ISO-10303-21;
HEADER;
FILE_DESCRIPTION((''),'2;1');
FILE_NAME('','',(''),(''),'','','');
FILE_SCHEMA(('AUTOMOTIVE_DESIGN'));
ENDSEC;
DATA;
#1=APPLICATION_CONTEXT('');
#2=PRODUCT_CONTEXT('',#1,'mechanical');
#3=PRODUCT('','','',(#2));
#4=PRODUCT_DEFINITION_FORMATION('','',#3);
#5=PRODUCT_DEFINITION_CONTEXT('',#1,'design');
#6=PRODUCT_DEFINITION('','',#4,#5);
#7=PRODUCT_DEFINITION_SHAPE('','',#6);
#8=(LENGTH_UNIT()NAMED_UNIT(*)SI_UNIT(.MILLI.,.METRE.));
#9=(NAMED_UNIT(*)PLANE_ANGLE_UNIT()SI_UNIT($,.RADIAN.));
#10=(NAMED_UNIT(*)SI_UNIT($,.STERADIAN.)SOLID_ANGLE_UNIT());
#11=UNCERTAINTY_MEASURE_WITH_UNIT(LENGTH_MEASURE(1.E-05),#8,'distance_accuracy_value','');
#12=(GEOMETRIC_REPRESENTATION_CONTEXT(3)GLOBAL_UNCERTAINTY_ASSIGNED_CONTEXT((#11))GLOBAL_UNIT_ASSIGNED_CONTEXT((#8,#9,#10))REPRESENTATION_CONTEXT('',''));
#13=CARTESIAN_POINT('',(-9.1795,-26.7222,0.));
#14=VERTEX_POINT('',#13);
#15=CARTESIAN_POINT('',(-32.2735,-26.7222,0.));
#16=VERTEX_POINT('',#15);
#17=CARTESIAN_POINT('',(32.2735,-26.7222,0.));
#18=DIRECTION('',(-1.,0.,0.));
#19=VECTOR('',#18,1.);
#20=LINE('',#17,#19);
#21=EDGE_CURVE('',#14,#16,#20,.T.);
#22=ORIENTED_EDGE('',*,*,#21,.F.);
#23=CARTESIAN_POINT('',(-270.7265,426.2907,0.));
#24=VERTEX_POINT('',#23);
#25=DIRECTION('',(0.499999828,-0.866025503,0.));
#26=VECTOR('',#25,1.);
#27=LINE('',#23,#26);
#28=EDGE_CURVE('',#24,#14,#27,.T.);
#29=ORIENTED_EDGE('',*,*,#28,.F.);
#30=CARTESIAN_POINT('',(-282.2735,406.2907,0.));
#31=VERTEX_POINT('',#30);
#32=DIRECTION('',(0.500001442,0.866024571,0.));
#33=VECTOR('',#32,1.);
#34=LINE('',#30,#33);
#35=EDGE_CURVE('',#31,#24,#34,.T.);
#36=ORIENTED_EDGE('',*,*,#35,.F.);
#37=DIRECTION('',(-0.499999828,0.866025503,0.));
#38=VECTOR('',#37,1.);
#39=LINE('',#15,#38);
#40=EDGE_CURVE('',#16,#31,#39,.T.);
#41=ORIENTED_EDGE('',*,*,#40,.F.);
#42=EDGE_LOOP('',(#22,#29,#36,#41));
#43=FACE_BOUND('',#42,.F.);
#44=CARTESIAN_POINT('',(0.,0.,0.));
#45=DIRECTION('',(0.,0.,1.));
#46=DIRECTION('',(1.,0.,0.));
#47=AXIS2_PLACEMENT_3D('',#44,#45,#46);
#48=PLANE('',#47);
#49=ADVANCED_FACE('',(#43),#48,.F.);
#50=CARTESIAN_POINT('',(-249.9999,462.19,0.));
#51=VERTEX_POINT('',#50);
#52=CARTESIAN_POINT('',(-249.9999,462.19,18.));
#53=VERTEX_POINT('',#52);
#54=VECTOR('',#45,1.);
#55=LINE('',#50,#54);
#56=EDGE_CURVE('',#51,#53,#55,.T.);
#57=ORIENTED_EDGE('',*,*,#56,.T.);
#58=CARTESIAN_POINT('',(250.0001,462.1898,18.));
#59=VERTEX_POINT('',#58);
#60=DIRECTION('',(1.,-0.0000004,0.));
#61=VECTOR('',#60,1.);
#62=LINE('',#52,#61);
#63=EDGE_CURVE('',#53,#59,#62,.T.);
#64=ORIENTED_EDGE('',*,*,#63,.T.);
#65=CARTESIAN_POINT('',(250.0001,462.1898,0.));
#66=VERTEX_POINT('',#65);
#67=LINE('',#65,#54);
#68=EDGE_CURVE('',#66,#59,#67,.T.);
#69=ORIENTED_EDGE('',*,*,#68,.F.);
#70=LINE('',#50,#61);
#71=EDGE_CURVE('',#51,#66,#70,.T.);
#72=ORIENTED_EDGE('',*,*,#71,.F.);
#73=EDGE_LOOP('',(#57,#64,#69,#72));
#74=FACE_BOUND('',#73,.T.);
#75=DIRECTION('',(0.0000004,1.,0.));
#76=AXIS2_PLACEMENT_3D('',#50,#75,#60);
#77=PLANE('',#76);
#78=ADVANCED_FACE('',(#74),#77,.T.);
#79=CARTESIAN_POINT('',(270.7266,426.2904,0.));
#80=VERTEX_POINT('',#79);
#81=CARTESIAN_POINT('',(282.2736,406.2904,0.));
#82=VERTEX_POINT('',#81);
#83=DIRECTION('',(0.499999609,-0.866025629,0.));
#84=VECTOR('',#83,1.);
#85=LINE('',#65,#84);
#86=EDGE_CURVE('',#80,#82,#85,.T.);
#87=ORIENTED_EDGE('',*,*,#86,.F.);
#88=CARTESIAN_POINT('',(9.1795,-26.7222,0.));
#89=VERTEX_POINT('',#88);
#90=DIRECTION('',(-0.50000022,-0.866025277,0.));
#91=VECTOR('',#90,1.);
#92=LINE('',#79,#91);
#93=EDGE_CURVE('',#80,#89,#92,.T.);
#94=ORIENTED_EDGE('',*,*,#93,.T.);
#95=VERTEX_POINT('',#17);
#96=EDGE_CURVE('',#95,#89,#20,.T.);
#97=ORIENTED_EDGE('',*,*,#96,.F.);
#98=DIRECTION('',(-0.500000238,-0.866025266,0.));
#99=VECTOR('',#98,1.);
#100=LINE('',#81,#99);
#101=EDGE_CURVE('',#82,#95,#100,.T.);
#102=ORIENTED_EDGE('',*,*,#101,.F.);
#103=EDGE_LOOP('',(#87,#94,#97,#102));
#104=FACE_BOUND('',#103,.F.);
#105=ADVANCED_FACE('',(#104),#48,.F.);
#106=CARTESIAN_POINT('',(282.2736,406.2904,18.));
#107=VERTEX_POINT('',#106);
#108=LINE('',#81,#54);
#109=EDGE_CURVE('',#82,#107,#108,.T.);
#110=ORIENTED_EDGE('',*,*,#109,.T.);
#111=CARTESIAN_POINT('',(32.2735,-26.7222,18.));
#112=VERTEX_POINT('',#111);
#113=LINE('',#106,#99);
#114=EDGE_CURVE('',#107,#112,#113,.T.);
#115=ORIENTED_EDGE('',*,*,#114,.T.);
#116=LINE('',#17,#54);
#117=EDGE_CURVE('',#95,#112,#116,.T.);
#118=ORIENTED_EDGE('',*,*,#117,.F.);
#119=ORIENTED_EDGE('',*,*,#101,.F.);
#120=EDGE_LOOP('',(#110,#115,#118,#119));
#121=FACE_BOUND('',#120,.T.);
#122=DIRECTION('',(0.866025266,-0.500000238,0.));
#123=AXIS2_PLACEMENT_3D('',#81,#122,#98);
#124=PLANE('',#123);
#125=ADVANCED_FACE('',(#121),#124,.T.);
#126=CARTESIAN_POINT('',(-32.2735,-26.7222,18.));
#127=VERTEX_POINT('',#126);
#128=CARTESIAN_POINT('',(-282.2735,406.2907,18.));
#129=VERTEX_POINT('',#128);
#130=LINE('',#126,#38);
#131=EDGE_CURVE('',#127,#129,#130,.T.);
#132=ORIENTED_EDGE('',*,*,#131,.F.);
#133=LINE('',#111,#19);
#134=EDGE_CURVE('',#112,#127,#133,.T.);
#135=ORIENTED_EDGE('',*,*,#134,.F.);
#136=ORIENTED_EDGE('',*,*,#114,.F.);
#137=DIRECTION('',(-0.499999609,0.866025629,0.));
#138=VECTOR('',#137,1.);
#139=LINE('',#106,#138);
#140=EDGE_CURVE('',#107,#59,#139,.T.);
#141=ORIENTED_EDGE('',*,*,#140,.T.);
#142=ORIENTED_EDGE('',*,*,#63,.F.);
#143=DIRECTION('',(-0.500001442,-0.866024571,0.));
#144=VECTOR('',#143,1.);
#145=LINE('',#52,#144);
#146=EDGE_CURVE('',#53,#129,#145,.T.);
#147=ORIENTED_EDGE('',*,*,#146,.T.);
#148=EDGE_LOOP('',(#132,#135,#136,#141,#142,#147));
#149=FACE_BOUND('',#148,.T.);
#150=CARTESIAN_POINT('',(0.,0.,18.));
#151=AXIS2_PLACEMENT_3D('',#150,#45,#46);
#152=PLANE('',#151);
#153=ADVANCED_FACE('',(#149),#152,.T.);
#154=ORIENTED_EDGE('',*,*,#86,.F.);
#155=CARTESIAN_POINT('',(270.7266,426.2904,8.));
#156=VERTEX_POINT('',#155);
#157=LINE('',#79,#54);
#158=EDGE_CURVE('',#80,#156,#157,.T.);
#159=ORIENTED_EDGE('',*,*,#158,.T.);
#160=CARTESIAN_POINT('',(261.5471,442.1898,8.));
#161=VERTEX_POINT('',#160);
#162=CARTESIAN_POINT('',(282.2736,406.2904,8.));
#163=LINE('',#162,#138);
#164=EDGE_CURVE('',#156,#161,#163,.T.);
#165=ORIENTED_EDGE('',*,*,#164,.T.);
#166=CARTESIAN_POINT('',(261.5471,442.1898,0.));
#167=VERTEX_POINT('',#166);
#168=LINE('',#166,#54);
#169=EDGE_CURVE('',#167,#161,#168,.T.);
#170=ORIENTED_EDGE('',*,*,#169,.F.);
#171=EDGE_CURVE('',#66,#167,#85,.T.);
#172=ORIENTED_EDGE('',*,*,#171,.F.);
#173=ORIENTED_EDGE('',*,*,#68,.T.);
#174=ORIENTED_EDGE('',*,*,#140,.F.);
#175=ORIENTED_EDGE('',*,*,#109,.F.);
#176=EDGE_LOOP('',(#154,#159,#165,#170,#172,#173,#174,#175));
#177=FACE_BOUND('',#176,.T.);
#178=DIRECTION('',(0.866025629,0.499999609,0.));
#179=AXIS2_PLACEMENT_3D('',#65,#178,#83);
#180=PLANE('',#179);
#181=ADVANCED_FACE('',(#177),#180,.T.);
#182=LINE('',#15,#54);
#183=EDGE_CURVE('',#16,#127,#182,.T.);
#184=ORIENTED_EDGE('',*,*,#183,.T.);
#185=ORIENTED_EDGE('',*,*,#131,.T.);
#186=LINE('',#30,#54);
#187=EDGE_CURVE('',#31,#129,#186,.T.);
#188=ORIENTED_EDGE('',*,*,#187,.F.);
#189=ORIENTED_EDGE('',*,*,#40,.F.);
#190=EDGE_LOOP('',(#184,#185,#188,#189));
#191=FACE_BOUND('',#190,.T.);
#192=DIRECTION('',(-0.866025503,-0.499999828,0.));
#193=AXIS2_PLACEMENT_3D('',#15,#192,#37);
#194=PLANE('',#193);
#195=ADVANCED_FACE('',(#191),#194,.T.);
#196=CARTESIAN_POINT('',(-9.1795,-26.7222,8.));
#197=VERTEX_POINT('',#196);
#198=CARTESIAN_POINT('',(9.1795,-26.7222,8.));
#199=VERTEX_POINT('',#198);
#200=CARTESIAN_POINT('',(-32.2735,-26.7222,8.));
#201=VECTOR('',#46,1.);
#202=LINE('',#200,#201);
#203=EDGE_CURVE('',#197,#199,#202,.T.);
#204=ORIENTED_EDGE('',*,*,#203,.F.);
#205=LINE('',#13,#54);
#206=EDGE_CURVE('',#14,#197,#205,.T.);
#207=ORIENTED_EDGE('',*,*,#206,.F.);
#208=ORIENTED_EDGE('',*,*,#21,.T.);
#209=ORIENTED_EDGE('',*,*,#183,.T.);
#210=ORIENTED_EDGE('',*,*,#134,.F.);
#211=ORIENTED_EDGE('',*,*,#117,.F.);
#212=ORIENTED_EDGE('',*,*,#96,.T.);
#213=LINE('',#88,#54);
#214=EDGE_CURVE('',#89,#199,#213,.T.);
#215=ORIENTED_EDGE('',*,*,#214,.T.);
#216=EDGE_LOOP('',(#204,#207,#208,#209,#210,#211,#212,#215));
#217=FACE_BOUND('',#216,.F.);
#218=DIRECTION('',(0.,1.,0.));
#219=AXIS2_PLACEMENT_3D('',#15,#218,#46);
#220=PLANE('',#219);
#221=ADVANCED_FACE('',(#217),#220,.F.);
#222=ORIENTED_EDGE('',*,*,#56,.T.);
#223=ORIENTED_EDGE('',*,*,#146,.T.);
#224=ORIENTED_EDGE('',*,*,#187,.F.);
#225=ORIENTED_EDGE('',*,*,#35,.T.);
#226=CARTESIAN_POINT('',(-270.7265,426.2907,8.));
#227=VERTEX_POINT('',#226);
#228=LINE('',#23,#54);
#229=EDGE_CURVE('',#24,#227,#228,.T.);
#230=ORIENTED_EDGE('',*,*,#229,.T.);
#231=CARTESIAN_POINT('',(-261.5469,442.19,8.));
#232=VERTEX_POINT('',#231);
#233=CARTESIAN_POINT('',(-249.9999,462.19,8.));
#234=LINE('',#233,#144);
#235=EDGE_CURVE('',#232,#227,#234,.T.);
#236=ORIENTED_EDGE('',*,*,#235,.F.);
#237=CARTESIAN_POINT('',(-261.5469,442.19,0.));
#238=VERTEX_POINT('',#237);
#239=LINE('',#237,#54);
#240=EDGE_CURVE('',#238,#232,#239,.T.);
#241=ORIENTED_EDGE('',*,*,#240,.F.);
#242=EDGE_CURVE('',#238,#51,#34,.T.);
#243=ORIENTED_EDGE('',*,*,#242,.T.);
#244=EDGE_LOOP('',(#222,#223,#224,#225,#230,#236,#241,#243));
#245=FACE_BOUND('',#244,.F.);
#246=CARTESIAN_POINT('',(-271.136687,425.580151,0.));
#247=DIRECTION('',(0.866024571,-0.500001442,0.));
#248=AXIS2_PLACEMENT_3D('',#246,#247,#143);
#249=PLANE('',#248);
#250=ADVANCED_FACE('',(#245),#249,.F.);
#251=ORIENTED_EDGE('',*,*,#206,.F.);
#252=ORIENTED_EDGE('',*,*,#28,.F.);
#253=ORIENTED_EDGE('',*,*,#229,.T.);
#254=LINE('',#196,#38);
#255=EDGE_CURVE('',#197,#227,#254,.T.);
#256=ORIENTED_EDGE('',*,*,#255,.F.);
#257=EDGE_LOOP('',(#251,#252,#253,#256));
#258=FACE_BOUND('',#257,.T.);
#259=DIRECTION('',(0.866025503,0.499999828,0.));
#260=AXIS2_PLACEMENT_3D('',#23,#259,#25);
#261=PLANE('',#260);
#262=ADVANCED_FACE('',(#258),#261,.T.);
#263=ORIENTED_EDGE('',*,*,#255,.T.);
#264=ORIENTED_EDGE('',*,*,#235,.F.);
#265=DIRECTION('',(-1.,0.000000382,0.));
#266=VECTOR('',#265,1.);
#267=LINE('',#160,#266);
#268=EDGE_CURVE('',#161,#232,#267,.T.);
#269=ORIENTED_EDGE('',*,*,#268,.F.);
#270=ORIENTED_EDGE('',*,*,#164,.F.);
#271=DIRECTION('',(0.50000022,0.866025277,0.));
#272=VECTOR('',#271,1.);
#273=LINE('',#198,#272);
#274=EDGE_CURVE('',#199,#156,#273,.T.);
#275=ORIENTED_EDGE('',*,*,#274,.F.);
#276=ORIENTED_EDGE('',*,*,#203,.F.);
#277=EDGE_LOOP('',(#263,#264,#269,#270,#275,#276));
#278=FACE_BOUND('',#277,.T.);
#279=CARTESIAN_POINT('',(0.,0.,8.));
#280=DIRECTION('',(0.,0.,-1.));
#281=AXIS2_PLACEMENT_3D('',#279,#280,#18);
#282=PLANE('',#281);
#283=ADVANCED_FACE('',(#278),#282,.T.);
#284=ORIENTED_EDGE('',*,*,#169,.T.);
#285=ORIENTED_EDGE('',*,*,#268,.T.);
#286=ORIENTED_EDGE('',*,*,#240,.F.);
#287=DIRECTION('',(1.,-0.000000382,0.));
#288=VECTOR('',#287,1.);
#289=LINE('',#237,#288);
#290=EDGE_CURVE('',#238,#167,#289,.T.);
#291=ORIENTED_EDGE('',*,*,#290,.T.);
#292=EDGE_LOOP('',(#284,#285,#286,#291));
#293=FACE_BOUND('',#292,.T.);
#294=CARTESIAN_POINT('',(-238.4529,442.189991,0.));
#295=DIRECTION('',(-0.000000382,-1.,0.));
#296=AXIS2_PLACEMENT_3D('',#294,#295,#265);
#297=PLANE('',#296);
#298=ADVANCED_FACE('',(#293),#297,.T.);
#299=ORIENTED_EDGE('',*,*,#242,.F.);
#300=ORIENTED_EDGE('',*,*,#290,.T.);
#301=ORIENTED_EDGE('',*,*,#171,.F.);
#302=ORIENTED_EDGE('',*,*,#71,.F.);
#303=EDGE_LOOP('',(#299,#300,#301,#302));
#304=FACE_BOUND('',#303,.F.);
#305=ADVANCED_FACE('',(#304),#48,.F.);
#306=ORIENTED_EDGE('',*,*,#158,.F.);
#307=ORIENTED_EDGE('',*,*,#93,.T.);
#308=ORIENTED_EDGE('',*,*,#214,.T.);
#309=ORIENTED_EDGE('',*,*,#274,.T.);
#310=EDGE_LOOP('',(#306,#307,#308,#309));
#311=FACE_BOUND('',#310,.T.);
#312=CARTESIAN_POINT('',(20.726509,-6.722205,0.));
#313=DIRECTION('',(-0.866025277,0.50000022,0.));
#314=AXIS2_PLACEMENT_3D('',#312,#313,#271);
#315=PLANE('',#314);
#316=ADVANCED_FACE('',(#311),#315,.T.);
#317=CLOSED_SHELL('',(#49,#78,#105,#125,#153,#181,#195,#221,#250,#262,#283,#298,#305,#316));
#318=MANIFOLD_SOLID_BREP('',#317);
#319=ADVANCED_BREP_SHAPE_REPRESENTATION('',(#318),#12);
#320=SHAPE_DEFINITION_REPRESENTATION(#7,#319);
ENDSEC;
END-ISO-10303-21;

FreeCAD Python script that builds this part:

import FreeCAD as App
import Part
import Sketcher

V = App.Vector
Q = App.Units.Quantity

doc = App.newDocument("Part")
body = doc.addObject("PartDesign::Body", "Body")

sketch1 = body.newObject("Sketcher::SketchObject", "Sketch")
sketch1.AttachmentSupport = (doc.getObject("XY_Plane"), [""])
sketch1.MapMode = "FlatFace"
sketch1.addGeometry([
    Part.LineSegment(V(-32, -27, 0), V(32, -27, 0)),
    Part.LineSegment(V(32, -27, 0), V(282, 406, 0)),
    Part.LineSegment(V(282, 406, 0), V(250, 462, 0)),
    Part.LineSegment(V(250, 462, 0), V(-250, 462, 0)),
    Part.LineSegment(V(-250, 462, 0), V(-282, 406, 0)),
    Part.LineSegment(V(-282, 406, 0), V(-32, -27, 0)),
], False)
sketch1.addConstraint([
    Sketcher.Constraint("Coincident", 0, 2, 1, 1),
    Sketcher.Constraint("Coincident", 1, 2, 2, 1),
    Sketcher.Constraint("Coincident", 2, 2, 3, 1),
    Sketcher.Constraint("Coincident", 3, 2, 4, 1),
    Sketcher.Constraint("Coincident", 4, 2, 5, 1),
    Sketcher.Constraint("Coincident", 5, 2, 0, 1),
    Sketcher.Constraint("Horizontal", 0),
    Sketcher.Constraint("Symmetric", 2, 2, 3, 2, -2),
    Sketcher.Constraint("Symmetric", 1, 2, 4, 2, -2),
    Sketcher.Constraint("Parallel", 1, 4),
    Sketcher.Constraint("Parallel", 2, 5),
    Sketcher.Constraint("Equal", 1, 3),
    Sketcher.Constraint("Angle", 1, Q("60 deg")),
    Sketcher.Constraint("Distance", 1, Q("500 mm")),
    Sketcher.Constraint("DistanceX", 0, 1, 0, 2, Q("64.547 mm")),
    Sketcher.Constraint("DistanceY", -1, 1, 3, 2, Q("462.19 mm")),
])
pad1 = body.newObject("PartDesign::Pad", "Pad")
pad1.Profile = sketch1
pad1.Length = 18

sketch2 = body.newObject("Sketcher::SketchObject", "Sketch001")
sketch2.AttachmentSupport = (doc.getObject("XY_Plane"), [""])
sketch2.MapMode = "FlatFace"
sketch2.addGeometry([
    Part.LineSegment(V(-271, 426, 0), V(-262, 442, 0)),
    Part.LineSegment(V(-262, 442, 0), V(262, 442, 0)),
    Part.LineSegment(V(262, 442, 0), V(271, 426, 0)),
    Part.LineSegment(V(271, 426, 0), V(9, -27, 0)),
    Part.LineSegment(V(9, -27, 0), V(-9, -27, 0)),
    Part.LineSegment(V(-9, -27, 0), V(-271, 426, 0)),
], False)
sketch2.addConstraint([
    Sketcher.Constraint("Coincident", 0, 2, 1, 1),
    Sketcher.Constraint("Coincident", 1, 2, 2, 1),
    Sketcher.Constraint("Coincident", 2, 2, 3, 1),
    Sketcher.Constraint("Coincident", 3, 2, 4, 1),
    Sketcher.Constraint("Coincident", 4, 2, 5, 1),
    Sketcher.Constraint("Coincident", 5, 2, 0, 1),
    Sketcher.Constraint("Horizontal", 4),
    Sketcher.Constraint("Symmetric", 0, 2, 1, 2, -2),
    Sketcher.Constraint("Symmetric", 2, 2, 5, 2, -2),
    Sketcher.Constraint("Parallel", 0, 3),
    Sketcher.Constraint("Parallel", 2, 5),
    Sketcher.Constraint("Equal", 1, 3),
    Sketcher.Constraint("Angle", 0, Q("60 deg")),
    Sketcher.Constraint("DistanceX", 4, 2, 4, 1, Q("18.359 mm")),
    Sketcher.Constraint("DistanceY", -1, 1, 0, 2, Q("442.19 mm")),
    Sketcher.Constraint("Distance", 1, Q("523.094 mm")),
])
pocket1 = body.newObject("PartDesign::Pocket", "Pocket")
pocket1.Profile = sketch2
pocket1.Length = 8
pocket1.Reversed = True

doc.recompute()
